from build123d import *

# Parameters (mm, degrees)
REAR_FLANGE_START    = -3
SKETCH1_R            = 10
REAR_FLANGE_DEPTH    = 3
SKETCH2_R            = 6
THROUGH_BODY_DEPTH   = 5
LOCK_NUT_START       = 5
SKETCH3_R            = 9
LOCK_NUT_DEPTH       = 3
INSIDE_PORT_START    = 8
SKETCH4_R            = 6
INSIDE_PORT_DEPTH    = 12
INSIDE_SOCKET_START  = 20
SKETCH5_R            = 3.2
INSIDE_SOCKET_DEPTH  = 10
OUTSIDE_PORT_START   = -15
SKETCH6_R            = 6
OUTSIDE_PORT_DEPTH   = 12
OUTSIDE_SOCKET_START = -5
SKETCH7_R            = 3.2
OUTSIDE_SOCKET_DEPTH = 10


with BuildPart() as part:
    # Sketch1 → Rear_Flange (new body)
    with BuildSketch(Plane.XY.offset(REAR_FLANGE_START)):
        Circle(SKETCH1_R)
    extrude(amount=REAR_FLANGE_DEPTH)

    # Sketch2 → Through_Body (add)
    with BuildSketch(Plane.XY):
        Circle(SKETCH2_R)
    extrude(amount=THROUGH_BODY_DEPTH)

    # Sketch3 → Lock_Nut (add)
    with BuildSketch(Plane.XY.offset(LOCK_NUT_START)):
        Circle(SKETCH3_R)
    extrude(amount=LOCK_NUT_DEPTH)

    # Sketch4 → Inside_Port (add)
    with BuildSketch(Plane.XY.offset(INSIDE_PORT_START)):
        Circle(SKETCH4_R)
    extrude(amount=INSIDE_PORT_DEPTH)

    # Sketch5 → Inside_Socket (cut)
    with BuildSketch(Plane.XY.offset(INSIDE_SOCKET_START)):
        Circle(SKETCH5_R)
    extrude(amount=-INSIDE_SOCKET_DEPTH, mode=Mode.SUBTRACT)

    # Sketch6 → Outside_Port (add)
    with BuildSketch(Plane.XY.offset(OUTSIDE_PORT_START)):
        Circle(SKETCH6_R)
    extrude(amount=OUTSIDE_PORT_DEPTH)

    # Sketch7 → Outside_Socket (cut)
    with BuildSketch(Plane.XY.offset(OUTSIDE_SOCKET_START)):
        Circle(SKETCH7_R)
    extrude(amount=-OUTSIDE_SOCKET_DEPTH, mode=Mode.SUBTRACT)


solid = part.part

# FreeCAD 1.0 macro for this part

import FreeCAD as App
import Part
import Sketcher
from FreeCAD import Vector

doc = App.newDocument("Part")
body = doc.addObject("PartDesign::Body", "Body")

# Sketch on XY plane
sketch1 = doc.addObject("Sketcher::SketchObject", "Sketch")
body.addObject(sketch1)
sketch1.AttachmentSupport = (doc.XY_Plane, [""])
sketch1.MapMode = "FlatFace"
sketch1.AttachmentOffset = App.Placement(Vector(0, 0, -3), App.Rotation())
sketch1.addGeometry(Part.Circle(Vector(0, 0, 0), Vector(0, 0, 1), 10), False)
sketch1.addConstraint([
    Sketcher.Constraint("Coincident", 0, 3, -1, 1),
    Sketcher.Constraint("Diameter", 0, 20.0),
])
pad1 = doc.addObject("PartDesign::Pad", "Pad")
body.addObject(pad1)
pad1.Profile = sketch1
pad1.Length = 3

# Sketch on XY plane
sketch2 = doc.addObject("Sketcher::SketchObject", "Sketch001")
body.addObject(sketch2)
sketch2.AttachmentSupport = (doc.XY_Plane, [""])
sketch2.MapMode = "FlatFace"
sketch2.addGeometry(Part.Circle(Vector(0, 0, 0), Vector(0, 0, 1), 6), False)
sketch2.addConstraint([
    Sketcher.Constraint("Coincident", 0, 3, -1, 1),
    Sketcher.Constraint("Diameter", 0, 12.0),
])
pad2 = doc.addObject("PartDesign::Pad", "Pad001")
body.addObject(pad2)
pad2.Profile = sketch2
pad2.Length = 5

# Sketch on XY plane
sketch3 = doc.addObject("Sketcher::SketchObject", "Sketch002")
body.addObject(sketch3)
sketch3.AttachmentSupport = (doc.XY_Plane, [""])
sketch3.MapMode = "FlatFace"
sketch3.AttachmentOffset = App.Placement(Vector(0, 0, 5), App.Rotation())
sketch3.addGeometry(Part.Circle(Vector(0, 0, 0), Vector(0, 0, 1), 9), False)
sketch3.addConstraint([
    Sketcher.Constraint("Coincident", 0, 3, -1, 1),
    Sketcher.Constraint("Diameter", 0, 18.0),
])
pad3 = doc.addObject("PartDesign::Pad", "Pad002")
body.addObject(pad3)
pad3.Profile = sketch3
pad3.Length = 3

# Sketch on XY plane
sketch4 = doc.addObject("Sketcher::SketchObject", "Sketch003")
body.addObject(sketch4)
sketch4.AttachmentSupport = (doc.XY_Plane, [""])
sketch4.MapMode = "FlatFace"
sketch4.AttachmentOffset = App.Placement(Vector(0, 0, 8), App.Rotation())
sketch4.addGeometry(Part.Circle(Vector(0, 0, 0), Vector(0, 0, 1), 6), False)
sketch4.addConstraint([
    Sketcher.Constraint("Coincident", 0, 3, -1, 1),
    Sketcher.Constraint("Diameter", 0, 12.0),
])
pad4 = doc.addObject("PartDesign::Pad", "Pad003")
body.addObject(pad4)
pad4.Profile = sketch4
pad4.Length = 12

# Sketch on XY plane
sketch5 = doc.addObject("Sketcher::SketchObject", "Sketch004")
body.addObject(sketch5)
sketch5.AttachmentSupport = (doc.XY_Plane, [""])
sketch5.MapMode = "FlatFace"
sketch5.AttachmentOffset = App.Placement(Vector(0, 0, 20), App.Rotation())
sketch5.addGeometry(Part.Circle(Vector(0, 0, 0), Vector(0, 0, 1), 3.2), False)
sketch5.addConstraint([
    Sketcher.Constraint("Coincident", 0, 3, -1, 1),
    Sketcher.Constraint("Diameter", 0, 6.4),
])
pocket1 = doc.addObject("PartDesign::Pocket", "Pocket")
body.addObject(pocket1)
pocket1.Profile = sketch5
pocket1.Length = 10

# Sketch on XY plane
sketch6 = doc.addObject("Sketcher::SketchObject", "Sketch005")
body.addObject(sketch6)
sketch6.AttachmentSupport = (doc.XY_Plane, [""])
sketch6.MapMode = "FlatFace"
sketch6.AttachmentOffset = App.Placement(Vector(0, 0, -15), App.Rotation())
sketch6.addGeometry(Part.Circle(Vector(0, 0, 0), Vector(0, 0, 1), 6), False)
sketch6.addConstraint([
    Sketcher.Constraint("Coincident", 0, 3, -1, 1),
    Sketcher.Constraint("Diameter", 0, 12.0),
])
pad5 = doc.addObject("PartDesign::Pad", "Pad004")
body.addObject(pad5)
pad5.Profile = sketch6
pad5.Length = 12

# Sketch on XY plane
sketch7 = doc.addObject("Sketcher::SketchObject", "Sketch006")
body.addObject(sketch7)
sketch7.AttachmentSupport = (doc.XY_Plane, [""])
sketch7.MapMode = "FlatFace"
sketch7.AttachmentOffset = App.Placement(Vector(0, 0, -5), App.Rotation())
sketch7.addGeometry(Part.Circle(Vector(0, 0, 0), Vector(0, 0, 1), 3.2), False)
sketch7.addConstraint([
    Sketcher.Constraint("Coincident", 0, 3, -1, 1),
    Sketcher.Constraint("Diameter", 0, 6.4),
])
pocket2 = doc.addObject("PartDesign::Pocket", "Pocket001")
body.addObject(pocket2)
pocket2.Profile = sketch7
pocket2.Length = 10

doc.recompute()
